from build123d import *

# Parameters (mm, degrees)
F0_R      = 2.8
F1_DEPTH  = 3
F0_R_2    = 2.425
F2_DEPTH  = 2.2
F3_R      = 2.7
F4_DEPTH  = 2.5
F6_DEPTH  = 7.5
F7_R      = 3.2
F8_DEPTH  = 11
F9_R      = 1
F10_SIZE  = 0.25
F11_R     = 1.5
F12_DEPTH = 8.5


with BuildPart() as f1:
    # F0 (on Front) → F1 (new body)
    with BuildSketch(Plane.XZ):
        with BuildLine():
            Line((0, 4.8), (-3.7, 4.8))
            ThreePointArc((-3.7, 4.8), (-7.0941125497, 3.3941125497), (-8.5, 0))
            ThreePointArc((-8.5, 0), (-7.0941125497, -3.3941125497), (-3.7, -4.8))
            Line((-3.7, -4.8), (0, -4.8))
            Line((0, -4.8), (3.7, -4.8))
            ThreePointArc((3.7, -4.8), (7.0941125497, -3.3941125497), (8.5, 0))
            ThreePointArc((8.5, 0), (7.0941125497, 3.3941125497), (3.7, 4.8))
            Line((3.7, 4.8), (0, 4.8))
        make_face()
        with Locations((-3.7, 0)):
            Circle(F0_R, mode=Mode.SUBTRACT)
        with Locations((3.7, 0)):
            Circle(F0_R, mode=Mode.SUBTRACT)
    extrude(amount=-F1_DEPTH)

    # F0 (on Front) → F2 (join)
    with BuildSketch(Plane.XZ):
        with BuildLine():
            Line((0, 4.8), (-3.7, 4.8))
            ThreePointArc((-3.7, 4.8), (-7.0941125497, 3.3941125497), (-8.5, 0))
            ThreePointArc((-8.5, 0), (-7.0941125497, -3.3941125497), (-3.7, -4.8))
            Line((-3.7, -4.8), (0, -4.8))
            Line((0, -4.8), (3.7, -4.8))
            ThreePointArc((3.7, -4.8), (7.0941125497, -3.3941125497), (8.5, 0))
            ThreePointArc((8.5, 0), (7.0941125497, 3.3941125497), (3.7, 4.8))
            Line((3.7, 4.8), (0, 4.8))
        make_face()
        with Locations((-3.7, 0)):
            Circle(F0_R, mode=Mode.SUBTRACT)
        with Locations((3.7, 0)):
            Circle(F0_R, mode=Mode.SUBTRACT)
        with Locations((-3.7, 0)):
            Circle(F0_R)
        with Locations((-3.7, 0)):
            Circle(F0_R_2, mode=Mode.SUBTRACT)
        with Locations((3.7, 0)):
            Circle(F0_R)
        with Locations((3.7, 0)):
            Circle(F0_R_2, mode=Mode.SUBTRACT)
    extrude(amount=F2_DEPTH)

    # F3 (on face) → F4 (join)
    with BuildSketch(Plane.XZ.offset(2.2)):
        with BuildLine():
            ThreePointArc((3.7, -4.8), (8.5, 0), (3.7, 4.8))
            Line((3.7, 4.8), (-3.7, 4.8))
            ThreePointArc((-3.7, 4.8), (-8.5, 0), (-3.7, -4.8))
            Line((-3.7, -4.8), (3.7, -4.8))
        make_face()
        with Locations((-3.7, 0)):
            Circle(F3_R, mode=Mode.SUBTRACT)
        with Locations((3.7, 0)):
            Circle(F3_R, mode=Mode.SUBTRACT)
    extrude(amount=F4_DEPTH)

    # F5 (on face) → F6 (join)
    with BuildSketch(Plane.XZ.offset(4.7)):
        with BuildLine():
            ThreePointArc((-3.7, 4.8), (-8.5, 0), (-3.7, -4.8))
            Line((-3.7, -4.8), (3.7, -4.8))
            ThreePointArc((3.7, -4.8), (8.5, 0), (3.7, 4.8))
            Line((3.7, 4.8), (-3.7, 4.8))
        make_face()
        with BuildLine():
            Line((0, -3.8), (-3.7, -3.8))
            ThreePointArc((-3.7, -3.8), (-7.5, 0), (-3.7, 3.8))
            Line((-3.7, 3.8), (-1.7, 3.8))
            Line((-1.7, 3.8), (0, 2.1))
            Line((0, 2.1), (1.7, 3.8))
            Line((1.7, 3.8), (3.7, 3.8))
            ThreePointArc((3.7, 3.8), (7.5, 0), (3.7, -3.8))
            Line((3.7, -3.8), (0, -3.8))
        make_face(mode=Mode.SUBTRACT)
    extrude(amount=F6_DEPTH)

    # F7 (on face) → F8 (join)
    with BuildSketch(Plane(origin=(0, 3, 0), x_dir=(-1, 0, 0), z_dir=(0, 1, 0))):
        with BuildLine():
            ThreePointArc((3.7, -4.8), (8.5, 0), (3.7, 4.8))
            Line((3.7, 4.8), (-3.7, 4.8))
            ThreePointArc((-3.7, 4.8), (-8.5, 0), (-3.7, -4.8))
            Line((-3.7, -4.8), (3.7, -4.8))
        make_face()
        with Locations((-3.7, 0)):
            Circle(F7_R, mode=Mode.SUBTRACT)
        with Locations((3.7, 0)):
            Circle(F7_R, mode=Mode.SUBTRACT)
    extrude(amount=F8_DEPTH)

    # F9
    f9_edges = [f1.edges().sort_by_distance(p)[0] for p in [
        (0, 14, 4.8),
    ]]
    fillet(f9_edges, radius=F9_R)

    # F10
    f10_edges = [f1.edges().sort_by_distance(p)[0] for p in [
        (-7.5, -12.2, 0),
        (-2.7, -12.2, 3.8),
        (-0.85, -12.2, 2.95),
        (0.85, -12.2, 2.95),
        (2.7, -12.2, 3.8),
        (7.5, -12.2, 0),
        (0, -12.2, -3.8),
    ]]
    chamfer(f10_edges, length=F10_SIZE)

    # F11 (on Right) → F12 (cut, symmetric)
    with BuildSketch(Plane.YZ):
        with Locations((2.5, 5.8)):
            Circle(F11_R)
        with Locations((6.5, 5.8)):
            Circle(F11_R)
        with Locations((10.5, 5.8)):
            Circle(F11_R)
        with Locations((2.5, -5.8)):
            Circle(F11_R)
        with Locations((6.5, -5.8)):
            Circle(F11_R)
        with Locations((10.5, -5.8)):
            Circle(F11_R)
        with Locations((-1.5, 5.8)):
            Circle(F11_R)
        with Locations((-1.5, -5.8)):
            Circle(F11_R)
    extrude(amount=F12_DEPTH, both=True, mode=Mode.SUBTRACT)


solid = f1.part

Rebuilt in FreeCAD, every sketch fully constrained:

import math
import FreeCAD as App
import Part
import Sketcher
from FreeCAD import Vector


def edges_at(feature, points):
    """Names of the edges that pass closest to the given points."""
    edges = feature.Shape.Edges
    near = lambda p: min(range(len(edges)), key=lambda i: edges[i].distToShape(Part.Vertex(*p))[0])
    return sorted({f"Edge{near(p) + 1}" for p in points})

doc = App.newDocument("Part")
body = doc.addObject("PartDesign::Body", "Body")

# Sketch on XZ plane
sketch1 = body.newObject("Sketcher::SketchObject", "Sketch")
sketch1.AttachmentSupport = (doc.getObject("XZ_Plane"), [""])
sketch1.MapMode = "FlatFace"
sketch1.addGeometry(Part.ArcOfCircle(Part.Circle(Vector(-3.7, 0, 0), Vector(0, 0, 1), 4.8), math.radians(90), math.radians(180)), False)
sketch1.addGeometry(Part.ArcOfCircle(Part.Circle(Vector(-3.7, 0, 0), Vector(0, 0, 1), 4.8), math.radians(180), math.radians(270)), False)
sketch1.addGeometry(Part.LineSegment(Vector(-3.7, -4.8, 0), Vector(3.7, -4.8, 0)), False)
sketch1.addGeometry(Part.ArcOfCircle(Part.Circle(Vector(3.7, 0, 0), Vector(0, 0, 1), 4.8), math.radians(-90), math.radians(0)), False)
sketch1.addGeometry(Part.ArcOfCircle(Part.Circle(Vector(3.7, 0, 0), Vector(0, 0, 1), 4.8), math.radians(0), math.radians(90)), False)
sketch1.addGeometry(Part.LineSegment(Vector(3.7, 4.8, 0), Vector(-3.7, 4.8, 0)), False)
sketch1.addGeometry(Part.Circle(Vector(-3.7, 0, 0), Vector(0, 0, 1), 2.8), False)
sketch1.addGeometry(Part.Circle(Vector(3.7, 0, 0), Vector(0, 0, 1), 2.8), False)
sketch1.addConstraint(Sketcher.Constraint("Tangent", 0, 2, 1, 1))
sketch1.addConstraint(Sketcher.Constraint("Tangent", 1, 2, 2, 1))
sketch1.addConstraint(Sketcher.Constraint("Tangent", 2, 2, 3, 1))
sketch1.addConstraint(Sketcher.Constraint("Tangent", 3, 2, 4, 1))
sketch1.addConstraint(Sketcher.Constraint("Tangent", 4, 2, 5, 1))
sketch1.addConstraint(Sketcher.Constraint("Tangent", 5, 2, 0, 1))
sketch1.addConstraint(Sketcher.Constraint("Horizontal", 2))
sketch1.addConstraint(Sketcher.Constraint("Horizontal", 5))
sketch1.addConstraint(Sketcher.Constraint("Coincident", 6, 3, 0, 3))
sketch1.addConstraint(Sketcher.Constraint("Coincident", 7, 3, 3, 3))
sketch1.addConstraint(Sketcher.Constraint("Equal", 0, 1))
sketch1.addConstraint(Sketcher.Constraint("Equal", 1, 3))
sketch1.addConstraint(Sketcher.Constraint("Equal", 6, 7))
sketch1.addConstraint(Sketcher.Constraint("Symmetric", 0, 3, 3, 3, -1, 1))
sketch1.addConstraint(Sketcher.Constraint("PointOnObject", 0, 2, -1))
sketch1.addConstraint(Sketcher.Constraint("PointOnObject", 3, 2, -1))
sketch1.addConstraint(Sketcher.Constraint("Diameter", 6, 5.6))
sketch1.addConstraint(Sketcher.Constraint("Radius", 0, 4.8))
sketch1.addConstraint(Sketcher.Constraint("DistanceX", 2, 1, 2, 2, 7.4))
pad1 = body.newObject("PartDesign::Pad", "Pad")
pad1.Profile = sketch1
pad1.Length = 3
pad1.Reversed = True

# Sketch on XZ plane
sketch2 = body.newObject("Sketcher::SketchObject", "Sketch001")
sketch2.AttachmentSupport = (doc.getObject("XZ_Plane"), [""])
sketch2.MapMode = "FlatFace"
sketch2.addGeometry(Part.ArcOfCircle(Part.Circle(Vector(-3.7, 0, 0), Vector(0, 0, 1), 4.8), math.radians(90), math.radians(180)), False)
sketch2.addGeometry(Part.ArcOfCircle(Part.Circle(Vector(-3.7, 0, 0), Vector(0, 0, 1), 4.8), math.radians(180), math.radians(270)), False)
sketch2.addGeometry(Part.LineSegment(Vector(-3.7, -4.8, 0), Vector(3.7, -4.8, 0)), False)
sketch2.addGeometry(Part.ArcOfCircle(Part.Circle(Vector(3.7, 0, 0), Vector(0, 0, 1), 4.8), math.radians(-90), math.radians(0)), False)
sketch2.addGeometry(Part.ArcOfCircle(Part.Circle(Vector(3.7, 0, 0), Vector(0, 0, 1), 4.8), math.radians(0), math.radians(90)), False)
sketch2.addGeometry(Part.LineSegment(Vector(3.7, 4.8, 0), Vector(-3.7, 4.8, 0)), False)
sketch2.addGeometry(Part.Circle(Vector(-3.7, 0, 0), Vector(0, 0, 1), 2.4), False)
sketch2.addGeometry(Part.Circle(Vector(3.7, 0, 0), Vector(0, 0, 1), 2.4), False)
sketch2.addConstraint(Sketcher.Constraint("Tangent", 0, 2, 1, 1))
sketch2.addConstraint(Sketcher.Constraint("Tangent", 1, 2, 2, 1))
sketch2.addConstraint(Sketcher.Constraint("Tangent", 2, 2, 3, 1))
sketch2.addConstraint(Sketcher.Constraint("Tangent", 3, 2, 4, 1))
sketch2.addConstraint(Sketcher.Constraint("Tangent", 4, 2, 5, 1))
sketch2.addConstraint(Sketcher.Constraint("Tangent", 5, 2, 0, 1))
sketch2.addConstraint(Sketcher.Constraint("Horizontal", 2))
sketch2.addConstraint(Sketcher.Constraint("Horizontal", 5))
sketch2.addConstraint(Sketcher.Constraint("Coincident", 6, 3, 0, 3))
sketch2.addConstraint(Sketcher.Constraint("Coincident", 7, 3, 3, 3))
sketch2.addConstraint(Sketcher.Constraint("Equal", 0, 1))
sketch2.addConstraint(Sketcher.Constraint("Equal", 1, 3))
sketch2.addConstraint(Sketcher.Constraint("Equal", 6, 7))
sketch2.addConstraint(Sketcher.Constraint("Symmetric", 0, 3, 3, 3, -1, 1))
sketch2.addConstraint(Sketcher.Constraint("PointOnObject", 0, 2, -1))
sketch2.addConstraint(Sketcher.Constraint("PointOnObject", 3, 2, -1))
sketch2.addConstraint(Sketcher.Constraint("Radius", 0, 4.8))
sketch2.addConstraint(Sketcher.Constraint("Diameter", 6, 4.85))
sketch2.addConstraint(Sketcher.Constraint("DistanceX", 2, 1, 2, 2, 7.4))
pad2 = body.newObject("PartDesign::Pad", "Pad001")
pad2.Profile = sketch2
pad2.Length = 2.2

# Sketch on XZ plane
sketch3 = body.newObject("Sketcher::SketchObject", "Sketch002")
sketch3.AttachmentSupport = (doc.getObject("XZ_Plane"), [""])
sketch3.MapMode = "FlatFace"
sketch3.AttachmentOffset = App.Placement(Vector(0, 0, 2.2), App.Rotation())
sketch3.addGeometry(Part.ArcOfCircle(Part.Circle(Vector(3.7, 0, 0), Vector(0, 0, 1), 4.8), math.radians(-90), math.radians(90)), False)
sketch3.addGeometry(Part.LineSegment(Vector(3.7, 4.8, 0), Vector(-3.7, 4.8, 0)), False)
sketch3.addGeometry(Part.ArcOfCircle(Part.Circle(Vector(-3.7, 0, 0), Vector(0, 0, 1), 4.8), math.radians(90), math.radians(270)), False)
sketch3.addGeometry(Part.LineSegment(Vector(-3.7, -4.8, 0), Vector(3.7, -4.8, 0)), False)
sketch3.addGeometry(Part.Circle(Vector(-3.7, 0, 0), Vector(0, 0, 1), 2.7), False)
sketch3.addGeometry(Part.Circle(Vector(3.7, 0, 0), Vector(0, 0, 1), 2.7), False)
sketch3.addConstraint(Sketcher.Constraint("Tangent", 0, 2, 1, 1))
sketch3.addConstraint(Sketcher.Constraint("Tangent", 1, 2, 2, 1))
sketch3.addConstraint(Sketcher.Constraint("Tangent", 2, 2, 3, 1))
sketch3.addConstraint(Sketcher.Constraint("Tangent", 3, 2, 0, 1))
sketch3.addConstraint(Sketcher.Constraint("Horizontal", 1))
sketch3.addConstraint(Sketcher.Constraint("Horizontal", 3))
sketch3.addConstraint(Sketcher.Constraint("Coincident", 4, 3, 2, 3))
sketch3.addConstraint(Sketcher.Constraint("Coincident", 5, 3, 0, 3))
sketch3.addConstraint(Sketcher.Constraint("Equal", 4, 5))
sketch3.addConstraint(Sketcher.Constraint("Symmetric", 0, 3, 2, 3, -1, 1))
sketch3.addConstraint(Sketcher.Constraint("Diameter", 4, 5.4))
sketch3.addConstraint(Sketcher.Constraint("Radius", 0, 4.8))
sketch3.addConstraint(Sketcher.Constraint("DistanceX", 1, 2, 1, 1, 7.4))
pad3 = body.newObject("PartDesign::Pad", "Pad002")
pad3.Profile = sketch3
pad3.Length = 2.5

# Sketch on XZ plane
sketch4 = body.newObject("Sketcher::SketchObject", "Sketch003")
sketch4.AttachmentSupport = (doc.getObject("XZ_Plane"), [""])
sketch4.MapMode = "FlatFace"
sketch4.AttachmentOffset = App.Placement(Vector(0, 0, 4.7), App.Rotation())
sketch4.addGeometry(Part.ArcOfCircle(Part.Circle(Vector(-3.7, 0, 0), Vector(0, 0, 1), 4.8), math.radians(90), math.radians(270)), False)
sketch4.addGeometry(Part.LineSegment(Vector(-3.7, -4.8, 0), Vector(3.7, -4.8, 0)), False)
sketch4.addGeometry(Part.ArcOfCircle(Part.Circle(Vector(3.7, 0, 0), Vector(0, 0, 1), 4.8), math.radians(-90), math.radians(90)), False)
sketch4.addGeometry(Part.LineSegment(Vector(3.7, 4.8, 0), Vector(-3.7, 4.8, 0)), False)
sketch4.addGeometry(Part.LineSegment(Vector(3.7, -3.8, 0), Vector(-3.7, -3.8, 0)), False)
sketch4.addGeometry(Part.ArcOfCircle(Part.Circle(Vector(-3.7, 0, 0), Vector(0, 0, 1), 3.8), math.radians(90), math.radians(270)), False)
sketch4.addGeometry(Part.LineSegment(Vector(-3.7, 3.8, 0), Vector(-1.7, 3.8, 0)), False)
sketch4.addGeometry(Part.LineSegment(Vector(-1.7, 3.8, 0), Vector(0, 2.1, 0)), False)
sketch4.addGeometry(Part.LineSegment(Vector(0, 2.1, 0), Vector(1.7, 3.8, 0)), False)
sketch4.addGeometry(Part.LineSegment(Vector(1.7, 3.8, 0), Vector(3.7, 3.8, 0)), False)
sketch4.addGeometry(Part.ArcOfCircle(Part.Circle(Vector(3.7, 0, 0), Vector(0, 0, 1), 3.8), math.radians(-90), math.radians(90)), False)
sketch4.addConstraint(Sketcher.Constraint("Tangent", 0, 2, 1, 1))
sketch4.addConstraint(Sketcher.Constraint("Tangent", 1, 2, 2, 1))
sketch4.addConstraint(Sketcher.Constraint("Tangent", 2, 2, 3, 1))
sketch4.addConstraint(Sketcher.Constraint("Tangent", 3, 2, 0, 1))
sketch4.addConstraint(Sketcher.Constraint("Tangent", 4, 2, 5, 2))
sketch4.addConstraint(Sketcher.Constraint("Tangent", 5, 1, 6, 1))
sketch4.addConstraint(Sketcher.Constraint("Coincident", 6, 2, 7, 1))
sketch4.addConstraint(Sketcher.Constraint("Coincident", 7, 2, 8, 1))
sketch4.addConstraint(Sketcher.Constraint("Coincident", 8, 2, 9, 1))
sketch4.addConstraint(Sketcher.Constraint("Tangent", 9, 2, 10, 2))
sketch4.addConstraint(Sketcher.Constraint("Tangent", 10, 1, 4, 1))
sketch4.addConstraint(Sketcher.Constraint("Horizontal", 1))
sketch4.addConstraint(Sketcher.Constraint("Horizontal", 3))
sketch4.addConstraint(Sketcher.Constraint("Horizontal", 4))
sketch4.addConstraint(Sketcher.Constraint("Horizontal", 6))
sketch4.addConstraint(Sketcher.Constraint("Horizontal", 9))
sketch4.addConstraint(Sketcher.Constraint("Coincident", 5, 3, 0, 3))
sketch4.addConstraint(Sketcher.Constraint("Coincident", 10, 3, 2, 3))
sketch4.addConstraint(Sketcher.Constraint("Symmetric", 0, 3, 2, 3, -1, 1))
sketch4.addConstraint(Sketcher.Constraint("PointOnObject", 7, 2, -2))
sketch4.addConstraint(Sketcher.Constraint("Perpendicular", 7, 8))
sketch4.addConstraint(Sketcher.Constraint("Equal", 6, 9))
sketch4.addConstraint(Sketcher.Constraint("Radius", 0, 4.8))
sketch4.addConstraint(Sketcher.Constraint("Radius", 5, 3.8))
sketch4.addConstraint(Sketcher.Constraint("DistanceX", 6, 1, 6, 2, 2.0))
sketch4.addConstraint(Sketcher.Constraint("DistanceX", 1, 1, 1, 2, 7.4))
pad4 = body.newObject("PartDesign::Pad", "Pad003")
pad4.Profile = sketch4
pad4.Length = 7.5

# Sketch on XZ plane
sketch5 = body.newObject("Sketcher::SketchObject", "Sketch004")
sketch5.AttachmentSupport = (doc.getObject("XZ_Plane"), [""])
sketch5.MapMode = "FlatFace"
sketch5.AttachmentOffset = App.Placement(Vector(0, 0, -3), App.Rotation())
sketch5.addGeometry(Part.ArcOfCircle(Part.Circle(Vector(-3.7, 0, 0), Vector(0, 0, 1), 4.8), math.radians(90), math.radians(270)), False)
sketch5.addGeometry(Part.LineSegment(Vector(-3.7, 4.8, 0), Vector(3.7, 4.8, 0)), False)
sketch5.addGeometry(Part.ArcOfCircle(Part.Circle(Vector(3.7, 0, 0), Vector(0, 0, 1), 4.8), math.radians(-90), math.radians(90)), False)
sketch5.addGeometry(Part.LineSegment(Vector(3.7, -4.8, 0), Vector(-3.7, -4.8, 0)), False)
sketch5.addGeometry(Part.Circle(Vector(3.7, 0, 0), Vector(0, 0, 1), 3.2), False)
sketch5.addGeometry(Part.Circle(Vector(-3.7, 0, 0), Vector(0, 0, 1), 3.2), False)
sketch5.addConstraint(Sketcher.Constraint("Tangent", 0, 1, 1, 1))
sketch5.addConstraint(Sketcher.Constraint("Tangent", 1, 2, 2, 2))
sketch5.addConstraint(Sketcher.Constraint("Tangent", 2, 1, 3, 1))
sketch5.addConstraint(Sketcher.Constraint("Tangent", 3, 2, 0, 2))
sketch5.addConstraint(Sketcher.Constraint("Horizontal", 1))
sketch5.addConstraint(Sketcher.Constraint("Horizontal", 3))
sketch5.addConstraint(Sketcher.Constraint("Coincident", 4, 3, 2, 3))
sketch5.addConstraint(Sketcher.Constraint("Coincident", 5, 3, 0, 3))
sketch5.addConstraint(Sketcher.Constraint("Equal", 4, 5))
sketch5.addConstraint(Sketcher.Constraint("Symmetric", 0, 3, 2, 3, -1, 1))
sketch5.addConstraint(Sketcher.Constraint("Diameter", 4, 6.4))
sketch5.addConstraint(Sketcher.Constraint("Radius", 0, 4.8))
sketch5.addConstraint(Sketcher.Constraint("DistanceX", 1, 1, 1, 2, 7.4))
pad5 = body.newObject("PartDesign::Pad", "Pad004")
pad5.Profile = sketch5
pad5.Length = 11
pad5.Reversed = True
doc.recompute()

fillet = body.newObject("PartDesign::Fillet", "Fillet")
fillet.Base = (pad5, edges_at(pad5, [(0, 14, 4.8)]))
fillet.Radius = 1
doc.recompute()

chamfer = body.newObject("PartDesign::Chamfer", "Chamfer")
chamfer.Base = (fillet, edges_at(fillet, [
    (-7.5, -12.2, 0),
    (-2.7, -12.2, 3.8),
    (-0.85, -12.2, 2.95),
    (0.85, -12.2, 2.95),
    (2.7, -12.2, 3.8),
    (7.5, -12.2, 0),
    (0, -12.2, -3.8),
]))
chamfer.Size = 0.25

# Sketch on YZ plane
sketch6 = body.newObject("Sketcher::SketchObject", "Sketch005")
sketch6.AttachmentSupport = (doc.getObject("YZ_Plane"), [""])
sketch6.MapMode = "FlatFace"
sketch6.addGeometry(Part.Circle(Vector(2.5, 5.8, 0), Vector(0, 0, 1), 1.5), False)
sketch6.addGeometry(Part.Circle(Vector(6.5, 5.8, 0), Vector(0, 0, 1), 1.5), False)
sketch6.addGeometry(Part.Circle(Vector(10.5, 5.8, 0), Vector(0, 0, 1), 1.5), False)
sketch6.addGeometry(Part.Circle(Vector(2.5, -5.8, 0), Vector(0, 0, 1), 1.5), False)
sketch6.addGeometry(Part.Circle(Vector(6.5, -5.8, 0), Vector(0, 0, 1), 1.5), False)
sketch6.addGeometry(Part.Circle(Vector(10.5, -5.8, 0), Vector(0, 0, 1), 1.5), False)
sketch6.addGeometry(Part.Circle(Vector(-1.5, 5.8, 0), Vector(0, 0, 1), 1.5), False)
sketch6.addGeometry(Part.Circle(Vector(-1.5, -5.8, 0), Vector(0, 0, 1), 1.5), False)
sketch6.addConstraint(Sketcher.Constraint("Equal", 0, 1))
sketch6.addConstraint(Sketcher.Constraint("Equal", 1, 2))
sketch6.addConstraint(Sketcher.Constraint("Equal", 2, 3))
sketch6.addConstraint(Sketcher.Constraint("Equal", 3, 4))
sketch6.addConstraint(Sketcher.Constraint("Equal", 4, 5))
sketch6.addConstraint(Sketcher.Constraint("Equal", 5, 6))
sketch6.addConstraint(Sketcher.Constraint("Equal", 6, 7))
sketch6.addConstraint(Sketcher.Constraint("Symmetric", 0, 3, 3, 3, -1))
sketch6.addConstraint(Sketcher.Constraint("Symmetric", 1, 3, 4, 3, -1))
sketch6.addConstraint(Sketcher.Constraint("Symmetric", 2, 3, 5, 3, -1))
sketch6.addConstraint(Sketcher.Constraint("Symmetric", 6, 3, 7, 3, -1))
sketch6.addConstraint(Sketcher.Constraint("Horizontal", 0, 3, 1, 3))
sketch6.addConstraint(Sketcher.Constraint("Horizontal", 1, 3, 2, 3))
sketch6.addConstraint(Sketcher.Constraint("Horizontal", 2, 3, 6, 3))
sketch6.addConstraint(Sketcher.Constraint("Diameter", 0, 3.0))
sketch6.addConstraint(Sketcher.Constraint("DistanceX", 0, 3, 1, 3, 4.0))
sketch6.addConstraint(Sketcher.Constraint("DistanceX", 1, 3, 2, 3, 4.0))
sketch6.addConstraint(Sketcher.Constraint("DistanceX", 6, 3, 0, 3, 4.0))
sketch6.addConstraint(Sketcher.Constraint("DistanceX", -1, 1, 0, 3, 2.5))
sketch6.addConstraint(Sketcher.Constraint("DistanceY", -1, 1, 0, 3, 5.8))
pocket1 = body.newObject("PartDesign::Pocket", "Pocket")
pocket1.Profile = sketch6
pocket1.Length = 17
pocket1.Midplane = True

doc.recompute()
